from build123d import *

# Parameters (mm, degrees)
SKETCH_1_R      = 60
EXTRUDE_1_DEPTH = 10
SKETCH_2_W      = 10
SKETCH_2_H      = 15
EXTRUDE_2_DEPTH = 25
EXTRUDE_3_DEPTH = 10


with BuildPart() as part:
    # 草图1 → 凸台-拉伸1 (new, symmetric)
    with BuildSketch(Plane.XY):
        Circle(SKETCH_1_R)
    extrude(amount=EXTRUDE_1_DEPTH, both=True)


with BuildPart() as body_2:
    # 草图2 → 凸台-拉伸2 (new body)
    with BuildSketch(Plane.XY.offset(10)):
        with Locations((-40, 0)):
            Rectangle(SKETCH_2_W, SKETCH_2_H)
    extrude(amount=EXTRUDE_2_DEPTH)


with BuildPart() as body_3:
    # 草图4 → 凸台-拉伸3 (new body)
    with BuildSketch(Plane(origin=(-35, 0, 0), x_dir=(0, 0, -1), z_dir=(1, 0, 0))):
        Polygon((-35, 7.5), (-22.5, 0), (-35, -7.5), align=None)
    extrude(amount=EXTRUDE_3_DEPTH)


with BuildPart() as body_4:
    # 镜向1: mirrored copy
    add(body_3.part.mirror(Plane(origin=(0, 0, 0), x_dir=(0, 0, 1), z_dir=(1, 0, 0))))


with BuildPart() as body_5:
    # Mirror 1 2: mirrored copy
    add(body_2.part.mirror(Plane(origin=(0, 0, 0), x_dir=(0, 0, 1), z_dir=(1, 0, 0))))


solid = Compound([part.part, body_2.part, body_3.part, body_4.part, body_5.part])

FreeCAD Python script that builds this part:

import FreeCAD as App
import Part
import Sketcher
Q = App.Units.Quantity


def add_polygon(sketch, points):
    """Adds a closed chain of lines whose ends are joined by coincident constraints."""
    first, n = sketch.GeometryCount, len(points)
    for a, b in zip(points, points[1:] + points[:1]):
        sketch.addGeometry(Part.LineSegment(App.Vector(*a, 0), App.Vector(*b, 0)), False)
    for i in range(n):
        sketch.addConstraint(Sketcher.Constraint("Coincident", first + i, 2, first + (i + 1) % n, 1))

doc = App.newDocument("Part")
params = doc.addObject("Spreadsheet::Sheet", "Params")
for row, (alias, value) in enumerate([
    ("sketch1_diameter", "120 mm"),
    ("pad1_length", "20 mm"),
    ("sketch2_width", "10 mm"),
    ("sketch2_height", "15 mm"),
    ("pad2_length", "25 mm"),
    ("sketch3_width", "15 mm"),
    ("pad3_length", "10 mm"),
], start=1):
    params.set(f"A{row}", alias)
    params.set(f"B{row}", "=" + value)
    params.setAlias(f"B{row}", alias)

body = doc.addObject("PartDesign::Body", "Body")

# Sketch on XY plane
sketch1 = body.newObject("Sketcher::SketchObject", "Sketch")
sketch1.AttachmentSupport = (doc.getObject("XY_Plane"), [""])
sketch1.MapMode = "FlatFace"
sketch1.addGeometry(Part.Circle(App.Vector(0, 0, 0), App.Vector(0, 0, 1), 60), False)
sketch1.addConstraint(Sketcher.Constraint("Coincident", 0, 3, -1, 1))
sketch1.addConstraint(Sketcher.Constraint("Diameter", 0, Q("120 mm")))
sketch1.setExpression("Constraints[1]", "Params.sketch1_diameter")
pad1 = body.newObject("PartDesign::Pad", "Pad")
pad1.Profile = sketch1
pad1.setExpression("Length", "Params.pad1_length")
pad1.Midplane = True
body2 = doc.addObject("PartDesign::Body", "Body001")

# Sketch on XY plane
sketch2 = body2.newObject("Sketcher::SketchObject", "Sketch001")
sketch2.AttachmentSupport = (doc.getObject("XY_Plane001"), [""])
sketch2.MapMode = "FlatFace"
sketch2.AttachmentOffset = App.Placement(App.Vector(0, 0, 10), App.Rotation())
add_polygon(sketch2, [(-45, 8), (-45, -8), (-35, -8), (-35, 8)])  # lines 0-3
sketch2.addConstraint(Sketcher.Constraint("Vertical", 0))
sketch2.addConstraint(Sketcher.Constraint("Horizontal", 1))
sketch2.addConstraint(Sketcher.Constraint("Vertical", 2))
sketch2.addConstraint(Sketcher.Constraint("Horizontal", 3))
sketch2.addConstraint(Sketcher.Constraint("DistanceX", 1, 1, 1, 2, Q("10 mm")))
sketch2.addConstraint(Sketcher.Constraint("DistanceY", 0, 2, 0, 1, Q("15 mm")))
sketch2.addConstraint(Sketcher.Constraint("DistanceX", 0, 2, -1, 1, Q("45 mm")))
sketch2.addConstraint(Sketcher.Constraint("DistanceY", 0, 2, -1, 1, Q("7.5 mm")))
sketch2.setExpression("Constraints[8]", "Params.sketch2_width")
sketch2.setExpression("Constraints[9]", "Params.sketch2_height")
pad2 = body2.newObject("PartDesign::Pad", "Pad001")
pad2.Profile = sketch2
pad2.setExpression("Length", "Params.pad2_length")
body3 = doc.addObject("PartDesign::Body", "Body002")

# Sketch on YZ plane
sketch3 = body3.newObject("Sketcher::SketchObject", "Sketch002")
sketch3.AttachmentSupport = (doc.getObject("YZ_Plane002"), [""])
sketch3.MapMode = "FlatFace"
sketch3.AttachmentOffset = App.Placement(App.Vector(0, 0, -35), App.Rotation())
add_polygon(sketch3, [(0, 22), (8, 35), (-8, 35)])  # lines 0-2
sketch3.addConstraint(Sketcher.Constraint("Horizontal", 1))
sketch3.addConstraint(Sketcher.Constraint("PointOnObject", 2, 2, -2))
sketch3.addConstraint(Sketcher.Constraint("Equal", 0, 2))
sketch3.addConstraint(Sketcher.Constraint("DistanceX", 1, 2, 1, 1, Q("15 mm")))
sketch3.addConstraint(Sketcher.Constraint("DistanceY", -1, 1, 0, 2, Q("35 mm")))
sketch3.addConstraint(Sketcher.Constraint("DistanceY", -1, 1, 2, 2, Q("22.5 mm")))
sketch3.setExpression("Constraints[6]", "Params.sketch3_width")
pad3 = body3.newObject("PartDesign::Pad", "Pad002")
pad3.Profile = sketch3
pad3.setExpression("Length", "Params.pad3_length")
body4 = doc.addObject("PartDesign::Body", "Body003")
doc.recompute()

mirroring = doc.addObject("Part::Mirroring", "Mirroring")
mirroring.Source = body3
mirroring.Base = App.Vector(0, 0, 0)
mirroring.Normal = App.Vector(1, 0, 0)
body4.BaseFeature = mirroring
doc.recompute()
body5 = doc.addObject("PartDesign::Body", "Body004")
doc.recompute()

mirroring2 = doc.addObject("Part::Mirroring", "Mirroring001")
mirroring2.Source = body2
mirroring2.Base = App.Vector(0, 0, 0)
mirroring2.Normal = App.Vector(1, 0, 0)
body5.BaseFeature = mirroring2
doc.recompute()
mirroring.Visibility = False
mirroring2.Visibility = False

doc.recompute()
